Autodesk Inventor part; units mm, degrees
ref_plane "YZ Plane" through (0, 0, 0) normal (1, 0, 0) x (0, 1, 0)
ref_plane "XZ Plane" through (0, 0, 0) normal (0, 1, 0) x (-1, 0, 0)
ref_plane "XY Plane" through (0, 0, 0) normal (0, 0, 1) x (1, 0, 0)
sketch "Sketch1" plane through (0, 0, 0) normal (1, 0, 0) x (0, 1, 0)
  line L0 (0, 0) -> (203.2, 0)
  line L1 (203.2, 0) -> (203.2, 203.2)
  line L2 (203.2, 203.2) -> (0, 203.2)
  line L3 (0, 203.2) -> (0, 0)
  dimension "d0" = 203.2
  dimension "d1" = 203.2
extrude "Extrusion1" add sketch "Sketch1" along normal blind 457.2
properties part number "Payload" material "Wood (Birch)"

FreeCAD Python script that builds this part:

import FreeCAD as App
import Part
import Sketcher

V = App.Vector
Q = App.Units.Quantity


def add_polygon(sketch, points):
    """Adds a closed chain of lines whose ends are joined by coincident constraints."""
    first, n = sketch.GeometryCount, len(points)
    for a, b in zip(points, points[1:] + points[:1]):
        sketch.addGeometry(Part.LineSegment(App.Vector(*a, 0), App.Vector(*b, 0)), False)
    for i in range(n):
        sketch.addConstraint(Sketcher.Constraint("Coincident", first + i, 2, first + (i + 1) % n, 1))

doc = App.newDocument("Part")
params = doc.addObject("Spreadsheet::Sheet", "Params")
for row, (alias, value) in enumerate([
    ("sketch1_width", "8 in"),
    ("pad1_length", "18 in"),
], start=1):
    params.set(f"A{row}", alias)
    params.set(f"B{row}", "=" + value)
    params.setAlias(f"B{row}", alias)

body = doc.addObject("PartDesign::Body", "Body")

sketch1 = body.newObject("Sketcher::SketchObject", "Sketch")
sketch1.AttachmentSupport = (doc.getObject("YZ_Plane"), [""])
sketch1.MapMode = "FlatFace"
add_polygon(sketch1, [(0, 203.2), (0, 0), (203.2, 0), (203.2, 203.2)])
sketch1.addConstraint([
    Sketcher.Constraint("Vertical", 0),
    Sketcher.Constraint("Horizontal", 1),
    Sketcher.Constraint("Vertical", 2),
    Sketcher.Constraint("Horizontal", 3),
    Sketcher.Constraint("Coincident", 0, 2, -1, 1),
    Sketcher.Constraint("Equal", 3, 0),
    Sketcher.Constraint("DistanceX", 1, 1, 1, 2, Q("8 in")),
])
sketch1.setExpression("Constraints[10]", "Params.sketch1_width")
pad1 = body.newObject("PartDesign::Pad", "Pad")
pad1.Profile = sketch1
pad1.setExpression("Length", "Params.pad1_length")

doc.recompute()
